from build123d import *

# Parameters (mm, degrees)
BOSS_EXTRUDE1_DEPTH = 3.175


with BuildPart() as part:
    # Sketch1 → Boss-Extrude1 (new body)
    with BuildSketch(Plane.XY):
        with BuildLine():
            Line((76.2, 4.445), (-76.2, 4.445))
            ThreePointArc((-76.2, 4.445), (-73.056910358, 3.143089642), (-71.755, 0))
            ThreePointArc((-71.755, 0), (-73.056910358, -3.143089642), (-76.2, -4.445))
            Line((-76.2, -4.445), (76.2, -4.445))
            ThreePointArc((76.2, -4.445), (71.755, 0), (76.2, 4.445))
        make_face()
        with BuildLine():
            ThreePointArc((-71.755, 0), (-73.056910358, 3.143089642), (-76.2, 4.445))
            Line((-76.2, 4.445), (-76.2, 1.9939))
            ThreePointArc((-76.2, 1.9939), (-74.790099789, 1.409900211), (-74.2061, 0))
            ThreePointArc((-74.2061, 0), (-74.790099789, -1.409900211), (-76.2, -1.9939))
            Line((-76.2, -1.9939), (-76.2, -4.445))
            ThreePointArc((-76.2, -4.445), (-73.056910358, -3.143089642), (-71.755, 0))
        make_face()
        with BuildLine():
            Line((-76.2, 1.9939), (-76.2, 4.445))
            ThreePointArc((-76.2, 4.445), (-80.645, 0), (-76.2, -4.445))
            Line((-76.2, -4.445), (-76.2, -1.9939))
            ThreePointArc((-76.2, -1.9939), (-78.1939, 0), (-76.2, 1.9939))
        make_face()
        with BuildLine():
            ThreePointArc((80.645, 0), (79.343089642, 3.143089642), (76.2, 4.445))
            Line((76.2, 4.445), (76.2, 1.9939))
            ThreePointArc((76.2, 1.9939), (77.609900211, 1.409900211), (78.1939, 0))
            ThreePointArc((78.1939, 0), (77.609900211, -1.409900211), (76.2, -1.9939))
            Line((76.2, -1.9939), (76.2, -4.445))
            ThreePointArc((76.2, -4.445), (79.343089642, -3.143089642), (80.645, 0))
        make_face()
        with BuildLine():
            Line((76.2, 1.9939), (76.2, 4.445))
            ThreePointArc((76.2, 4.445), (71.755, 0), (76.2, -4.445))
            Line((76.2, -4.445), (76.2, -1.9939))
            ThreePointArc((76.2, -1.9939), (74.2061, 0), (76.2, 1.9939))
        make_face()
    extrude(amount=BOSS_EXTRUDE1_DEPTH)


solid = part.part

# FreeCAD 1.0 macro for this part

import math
import FreeCAD as App
import Part
import Sketcher
Q = App.Units.Quantity

doc = App.newDocument("Part")
body = doc.addObject("PartDesign::Body", "Body")

sketch1 = body.newObject("Sketcher::SketchObject", "Sketch")
sketch1.AttachmentSupport = (doc.getObject("XY_Plane"), [""])
sketch1.MapMode = "FlatFace"
sketch1.addGeometry(Part.LineSegment(App.Vector(76.2, 4.4, 0), App.Vector(-76.2, 4.4, 0)), False)
sketch1.addGeometry(Part.ArcOfCircle(Part.Circle(App.Vector(-76.2, 0, 0), App.Vector(0, 0, 1), 4.4), math.radians(90), math.radians(270)), False)
sketch1.addGeometry(Part.LineSegment(App.Vector(-76.2, -4.4, 0), App.Vector(76.2, -4.4, 0)), False)
sketch1.addGeometry(Part.ArcOfCircle(Part.Circle(App.Vector(76.2, 0, 0), App.Vector(0, 0, 1), 4.4), math.radians(-90), math.radians(0)), False)
sketch1.addGeometry(Part.ArcOfCircle(Part.Circle(App.Vector(76.2, 0, 0), App.Vector(0, 0, 1), 4.4), math.radians(0), math.radians(90)), False)
sketch1.addGeometry(Part.ArcOfCircle(Part.Circle(App.Vector(-76.2, 0, 0), App.Vector(0, 0, 1), 2), math.radians(-90), math.radians(0)), False)
sketch1.addGeometry(Part.ArcOfCircle(Part.Circle(App.Vector(-76.2, 0, 0), App.Vector(0, 0, 1), 2), math.radians(90), math.radians(270)), False)
sketch1.addGeometry(Part.ArcOfCircle(Part.Circle(App.Vector(-76.2, 0, 0), App.Vector(0, 0, 1), 2), math.radians(0), math.radians(90)), False)
sketch1.addGeometry(Part.ArcOfCircle(Part.Circle(App.Vector(76.2, 0, 0), App.Vector(0, 0, 1), 2), math.radians(90), math.radians(270)), False)
sketch1.addGeometry(Part.ArcOfCircle(Part.Circle(App.Vector(76.2, 0, 0), App.Vector(0, 0, 1), 2), math.radians(0), math.radians(90)), False)
sketch1.addGeometry(Part.ArcOfCircle(Part.Circle(App.Vector(76.2, 0, 0), App.Vector(0, 0, 1), 2), math.radians(-90), math.radians(0)), False)
sketch1.addConstraint(Sketcher.Constraint("Tangent", 0, 2, 1, 1))
sketch1.addConstraint(Sketcher.Constraint("Tangent", 1, 2, 2, 1))
sketch1.addConstraint(Sketcher.Constraint("Tangent", 2, 2, 3, 1))
sketch1.addConstraint(Sketcher.Constraint("Tangent", 3, 2, 4, 1))
sketch1.addConstraint(Sketcher.Constraint("Tangent", 4, 2, 0, 1))
sketch1.addConstraint(Sketcher.Constraint("Tangent", 5, 1, 6, 2))
sketch1.addConstraint(Sketcher.Constraint("Tangent", 6, 1, 7, 2))
sketch1.addConstraint(Sketcher.Constraint("Tangent", 7, 1, 5, 2))
sketch1.addConstraint(Sketcher.Constraint("Tangent", 8, 1, 9, 2))
sketch1.addConstraint(Sketcher.Constraint("Tangent", 9, 1, 10, 2))
sketch1.addConstraint(Sketcher.Constraint("Tangent", 10, 1, 8, 2))
sketch1.addConstraint(Sketcher.Constraint("Horizontal", 0))
sketch1.addConstraint(Sketcher.Constraint("Horizontal", 2))
sketch1.addConstraint(Sketcher.Constraint("Coincident", 5, 3, 1, 3))
sketch1.addConstraint(Sketcher.Constraint("Coincident", 8, 3, 3, 3))
sketch1.addConstraint(Sketcher.Constraint("Equal", 1, 3))
sketch1.addConstraint(Sketcher.Constraint("Equal", 7, 8))
sketch1.addConstraint(Sketcher.Constraint("Symmetric", 1, 3, 3, 3, -1, 1))
sketch1.addConstraint(Sketcher.Constraint("PointOnObject", 3, 2, -1))
sketch1.addConstraint(Sketcher.Constraint("PointOnObject", 7, 1, -1))
sketch1.addConstraint(Sketcher.Constraint("PointOnObject", 9, 1, -1))
sketch1.addConstraint(Sketcher.Constraint("Vertical", 1, 2, 5, 1))
sketch1.addConstraint(Sketcher.Constraint("Vertical", 5, 1, 6, 1))
sketch1.addConstraint(Sketcher.Constraint("Vertical", 4, 2, 8, 1))
sketch1.addConstraint(Sketcher.Constraint("Vertical", 8, 1, 10, 1))
sketch1.addConstraint(Sketcher.Constraint("DistanceX", 0, 2, 0, 1, Q("6 in")))
sketch1.addConstraint(Sketcher.Constraint("Radius", 1, Q("0.175 in")))
sketch1.addConstraint(Sketcher.Constraint("Radius", 5, Q("0.0785 in")))
pad1 = body.newObject("PartDesign::Pad", "Pad")
pad1.Profile = sketch1
pad1.Length = Q("0.125 in")

doc.recompute()
